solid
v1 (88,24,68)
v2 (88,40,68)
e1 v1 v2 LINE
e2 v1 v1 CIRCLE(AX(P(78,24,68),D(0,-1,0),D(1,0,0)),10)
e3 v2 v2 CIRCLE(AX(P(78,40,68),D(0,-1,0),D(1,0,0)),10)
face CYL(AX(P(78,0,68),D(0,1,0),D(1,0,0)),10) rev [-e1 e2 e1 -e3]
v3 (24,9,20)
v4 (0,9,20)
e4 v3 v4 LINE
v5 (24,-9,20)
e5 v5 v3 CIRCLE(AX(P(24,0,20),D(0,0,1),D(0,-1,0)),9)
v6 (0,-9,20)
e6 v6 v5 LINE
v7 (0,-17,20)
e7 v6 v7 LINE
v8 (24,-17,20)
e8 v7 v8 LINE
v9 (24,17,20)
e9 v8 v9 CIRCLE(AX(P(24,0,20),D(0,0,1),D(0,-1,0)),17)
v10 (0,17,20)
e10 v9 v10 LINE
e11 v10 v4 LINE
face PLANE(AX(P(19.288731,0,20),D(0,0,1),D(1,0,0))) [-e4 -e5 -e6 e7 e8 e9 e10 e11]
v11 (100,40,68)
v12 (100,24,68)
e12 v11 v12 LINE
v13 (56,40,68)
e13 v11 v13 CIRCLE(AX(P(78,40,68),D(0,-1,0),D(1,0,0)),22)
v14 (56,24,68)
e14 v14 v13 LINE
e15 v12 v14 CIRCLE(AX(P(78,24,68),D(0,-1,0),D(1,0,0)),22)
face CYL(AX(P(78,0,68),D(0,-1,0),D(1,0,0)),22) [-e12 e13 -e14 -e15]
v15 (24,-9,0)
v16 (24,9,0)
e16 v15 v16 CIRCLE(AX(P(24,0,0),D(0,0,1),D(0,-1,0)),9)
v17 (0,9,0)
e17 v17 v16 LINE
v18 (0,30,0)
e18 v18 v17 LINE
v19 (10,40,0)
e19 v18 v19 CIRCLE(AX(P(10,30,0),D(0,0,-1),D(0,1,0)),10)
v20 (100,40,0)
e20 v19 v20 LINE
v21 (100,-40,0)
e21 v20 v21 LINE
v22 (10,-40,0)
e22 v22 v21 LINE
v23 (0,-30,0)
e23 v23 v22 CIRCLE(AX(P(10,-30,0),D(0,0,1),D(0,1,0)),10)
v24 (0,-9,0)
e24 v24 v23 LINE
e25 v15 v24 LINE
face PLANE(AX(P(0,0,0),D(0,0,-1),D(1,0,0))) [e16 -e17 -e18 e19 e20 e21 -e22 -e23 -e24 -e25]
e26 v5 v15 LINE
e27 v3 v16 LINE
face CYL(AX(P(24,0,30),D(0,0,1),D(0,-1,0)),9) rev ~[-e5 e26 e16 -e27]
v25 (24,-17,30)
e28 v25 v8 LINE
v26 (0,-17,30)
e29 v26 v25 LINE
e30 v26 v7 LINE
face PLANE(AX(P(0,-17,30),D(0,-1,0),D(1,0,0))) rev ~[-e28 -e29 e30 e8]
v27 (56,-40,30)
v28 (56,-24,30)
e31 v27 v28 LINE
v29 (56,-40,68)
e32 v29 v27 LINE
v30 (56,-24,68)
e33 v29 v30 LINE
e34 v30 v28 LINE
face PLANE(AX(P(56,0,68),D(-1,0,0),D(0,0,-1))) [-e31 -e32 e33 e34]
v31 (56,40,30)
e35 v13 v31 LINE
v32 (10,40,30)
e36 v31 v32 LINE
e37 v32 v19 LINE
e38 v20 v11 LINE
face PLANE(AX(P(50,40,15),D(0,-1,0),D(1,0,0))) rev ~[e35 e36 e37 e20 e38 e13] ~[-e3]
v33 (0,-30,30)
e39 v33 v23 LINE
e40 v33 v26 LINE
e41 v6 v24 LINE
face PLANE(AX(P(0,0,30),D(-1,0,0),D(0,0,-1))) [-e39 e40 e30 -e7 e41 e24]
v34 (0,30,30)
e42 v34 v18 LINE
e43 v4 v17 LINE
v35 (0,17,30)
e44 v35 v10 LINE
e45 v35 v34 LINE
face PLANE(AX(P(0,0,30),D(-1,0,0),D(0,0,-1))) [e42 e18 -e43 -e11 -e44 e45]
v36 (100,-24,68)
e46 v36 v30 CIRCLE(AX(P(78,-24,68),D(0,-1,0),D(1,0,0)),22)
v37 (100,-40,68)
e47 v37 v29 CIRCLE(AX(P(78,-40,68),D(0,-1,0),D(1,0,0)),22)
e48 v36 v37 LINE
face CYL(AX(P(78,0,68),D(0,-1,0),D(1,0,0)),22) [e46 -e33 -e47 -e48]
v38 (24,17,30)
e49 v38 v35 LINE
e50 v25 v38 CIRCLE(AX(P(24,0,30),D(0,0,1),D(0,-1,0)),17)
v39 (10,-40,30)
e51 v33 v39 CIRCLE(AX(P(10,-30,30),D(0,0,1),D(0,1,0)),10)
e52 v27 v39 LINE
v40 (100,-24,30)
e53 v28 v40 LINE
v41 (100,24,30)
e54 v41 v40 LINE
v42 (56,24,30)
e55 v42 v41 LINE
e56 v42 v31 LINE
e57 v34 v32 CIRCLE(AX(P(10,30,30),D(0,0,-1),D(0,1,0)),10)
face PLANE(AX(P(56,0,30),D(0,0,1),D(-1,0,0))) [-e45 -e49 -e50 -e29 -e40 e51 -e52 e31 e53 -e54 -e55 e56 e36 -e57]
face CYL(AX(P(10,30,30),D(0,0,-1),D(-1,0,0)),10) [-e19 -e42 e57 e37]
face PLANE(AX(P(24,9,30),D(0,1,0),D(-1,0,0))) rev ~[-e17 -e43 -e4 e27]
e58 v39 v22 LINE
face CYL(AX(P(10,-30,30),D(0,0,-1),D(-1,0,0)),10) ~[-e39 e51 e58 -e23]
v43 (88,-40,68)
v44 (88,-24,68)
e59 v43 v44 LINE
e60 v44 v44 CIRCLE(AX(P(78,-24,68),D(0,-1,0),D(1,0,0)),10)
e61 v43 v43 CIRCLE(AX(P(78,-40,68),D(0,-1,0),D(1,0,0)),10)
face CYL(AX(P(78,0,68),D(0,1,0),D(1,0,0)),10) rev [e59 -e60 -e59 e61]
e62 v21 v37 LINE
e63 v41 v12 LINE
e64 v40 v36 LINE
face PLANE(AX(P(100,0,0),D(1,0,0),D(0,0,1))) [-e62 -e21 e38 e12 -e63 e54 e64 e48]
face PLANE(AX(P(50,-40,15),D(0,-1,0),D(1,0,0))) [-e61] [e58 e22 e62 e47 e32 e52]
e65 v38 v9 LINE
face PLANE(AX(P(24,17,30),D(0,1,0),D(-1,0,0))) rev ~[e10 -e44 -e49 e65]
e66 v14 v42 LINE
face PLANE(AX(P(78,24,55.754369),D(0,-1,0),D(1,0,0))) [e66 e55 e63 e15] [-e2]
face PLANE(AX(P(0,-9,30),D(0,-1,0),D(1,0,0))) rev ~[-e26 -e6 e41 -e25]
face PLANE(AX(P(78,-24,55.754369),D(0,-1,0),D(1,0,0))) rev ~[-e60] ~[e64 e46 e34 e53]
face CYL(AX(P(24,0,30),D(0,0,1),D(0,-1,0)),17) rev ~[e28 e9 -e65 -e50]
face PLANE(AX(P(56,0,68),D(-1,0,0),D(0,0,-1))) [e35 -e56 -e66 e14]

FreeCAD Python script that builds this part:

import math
import FreeCAD as App
import Part
import Sketcher

V = App.Vector


def edges_at(feature, points):
    """Names of the edges that pass closest to the given points."""
    edges = feature.Shape.Edges
    near = lambda p: min(range(len(edges)), key=lambda i: edges[i].distToShape(Part.Vertex(*p))[0])
    return sorted({f"Edge{near(p) + 1}" for p in points})

doc = App.newDocument("Part")
body = doc.addObject("PartDesign::Body", "Body")

sketch1 = body.newObject("Sketcher::SketchObject", "Sketch")
sketch1.AttachmentSupport = (doc.getObject("XZ_Plane"), [""])
sketch1.MapMode = "FlatFace"
sketch1.addGeometry([
    Part.LineSegment(V(0, 30, 0), V(0, 0, 0)),
    Part.LineSegment(V(0, 0, 0), V(100, 0, 0)),
    Part.LineSegment(V(100, 0, 0), V(100, 68, 0)),
    Part.ArcOfCircle(Part.Circle(V(78, 68, 0), V(0, 0, 1), 22), math.radians(0), math.radians(180)),
    Part.LineSegment(V(56, 68, 0), V(56, 30, 0)),
    Part.LineSegment(V(56, 30, 0), V(0, 30, 0)),
    Part.Circle(V(78, 68, 0), V(0, 0, 1), 10),
], False)
sketch1.addConstraint([
    Sketcher.Constraint("Coincident", 0, 2, 1, 1),
    Sketcher.Constraint("Coincident", 1, 2, 2, 1),
    Sketcher.Constraint("Tangent", 2, 2, 3, 1),
    Sketcher.Constraint("Tangent", 3, 2, 4, 1),
    Sketcher.Constraint("Coincident", 4, 2, 5, 1),
    Sketcher.Constraint("Coincident", 5, 2, 0, 1),
    Sketcher.Constraint("Vertical", 0),
    Sketcher.Constraint("Horizontal", 1),
    Sketcher.Constraint("Vertical", 2),
    Sketcher.Constraint("Vertical", 4),
    Sketcher.Constraint("Horizontal", 5),
    Sketcher.Constraint("Coincident", 0, 2, -1, 1),
    Sketcher.Constraint("Coincident", 6, 3, 3, 3),
    Sketcher.Constraint("Diameter", 6, 20.0),
    Sketcher.Constraint("Radius", 3, 22.0),
    Sketcher.Constraint("DistanceX", 1, 1, 1, 2, 100.0),
    Sketcher.Constraint("DistanceY", 0, 2, 0, 1, 30.0),
    Sketcher.Constraint("DistanceY", 2, 1, 2, 2, 68.0),
])
pad1 = body.newObject("PartDesign::Pad", "Pad")
pad1.Profile = sketch1
pad1.Length = 80
pad1.Midplane = True

sketch2 = body.newObject("Sketcher::SketchObject", "Sketch001")
sketch2.AttachmentSupport = (doc.getObject("XZ_Plane"), [""])
sketch2.MapMode = "FlatFace"
sketch2.addGeometry([
    Part.LineSegment(V(56, 30, 0), V(100, 30, 0)),
    Part.LineSegment(V(100, 30, 0), V(100, 68, 0)),
    Part.ArcOfCircle(Part.Circle(V(78, 68, 0), V(0, 0, 1), 22), math.radians(0), math.radians(180)),
    Part.LineSegment(V(56, 68, 0), V(56, 30, 0)),
    Part.Circle(V(78, 68, 0), V(0, 0, 1), 10),
], False)
sketch2.addConstraint([
    Sketcher.Constraint("Coincident", 0, 2, 1, 1),
    Sketcher.Constraint("Tangent", 1, 2, 2, 1),
    Sketcher.Constraint("Tangent", 2, 2, 3, 1),
    Sketcher.Constraint("Coincident", 3, 2, 0, 1),
    Sketcher.Constraint("Horizontal", 0),
    Sketcher.Constraint("Vertical", 1),
    Sketcher.Constraint("Vertical", 3),
    Sketcher.Constraint("Coincident", 4, 3, 2, 3),
    Sketcher.Constraint("Diameter", 4, 20.0),
    Sketcher.Constraint("Radius", 2, 22.0),
    Sketcher.Constraint("DistanceY", 1, 1, 1, 2, 38.0),
    Sketcher.Constraint("DistanceX", -1, 1, 2, 3, 78.0),
    Sketcher.Constraint("DistanceY", -1, 1, 2, 3, 68.0),
])
pocket1 = body.newObject("PartDesign::Pocket", "Pocket")
pocket1.Profile = sketch2
pocket1.Length = 48
pocket1.Midplane = True

sketch3 = body.newObject("Sketcher::SketchObject", "Sketch002")
sketch3.AttachmentSupport = (doc.getObject("XY_Plane"), [""])
sketch3.MapMode = "FlatFace"
sketch3.AttachmentOffset = App.Placement(V(0, 0, 30), App.Rotation())
sketch3.addGeometry([
    Part.LineSegment(V(0, -17, 0), V(24, -17, 0)),
    Part.ArcOfCircle(Part.Circle(V(24, 0, 0), V(0, 0, 1), 17), math.radians(-90), math.radians(90)),
    Part.LineSegment(V(24, 17, 0), V(0, 17, 0)),
    Part.LineSegment(V(0, 17, 0), V(0, -17, 0)),
], False)
sketch3.addConstraint([
    Sketcher.Constraint("Tangent", 0, 2, 1, 1),
    Sketcher.Constraint("Tangent", 1, 2, 2, 1),
    Sketcher.Constraint("Coincident", 2, 2, 3, 1),
    Sketcher.Constraint("Coincident", 3, 2, 0, 1),
    Sketcher.Constraint("Horizontal", 0),
    Sketcher.Constraint("Horizontal", 2),
    Sketcher.Constraint("Vertical", 3),
    Sketcher.Constraint("Symmetric", 2, 2, 3, 2, -1, 1),
    Sketcher.Constraint("Radius", 1, 17.0),
    Sketcher.Constraint("DistanceX", 0, 1, 0, 2, 24.0),
])
pocket2 = body.newObject("PartDesign::Pocket", "Pocket001")
pocket2.Profile = sketch3
pocket2.Length = 10

sketch4 = body.newObject("Sketcher::SketchObject", "Sketch003")
sketch4.AttachmentSupport = (doc.getObject("XY_Plane"), [""])
sketch4.MapMode = "FlatFace"
sketch4.AttachmentOffset = App.Placement(V(0, 0, 30), App.Rotation())
sketch4.addGeometry([
    Part.LineSegment(V(0, 9, 0), V(0, -9, 0)),
    Part.LineSegment(V(0, -9, 0), V(24, -9, 0)),
    Part.ArcOfCircle(Part.Circle(V(24, 0, 0), V(0, 0, 1), 9), math.radians(-90), math.radians(90)),
    Part.LineSegment(V(24, 9, 0), V(0, 9, 0)),
], False)
sketch4.addConstraint([
    Sketcher.Constraint("Coincident", 0, 2, 1, 1),
    Sketcher.Constraint("Tangent", 1, 2, 2, 1),
    Sketcher.Constraint("Tangent", 2, 2, 3, 1),
    Sketcher.Constraint("Coincident", 3, 2, 0, 1),
    Sketcher.Constraint("Vertical", 0),
    Sketcher.Constraint("Horizontal", 1),
    Sketcher.Constraint("Horizontal", 3),
    Sketcher.Constraint("Symmetric", 0, 2, 3, 2, -1, 1),
    Sketcher.Constraint("Radius", 2, 9.0),
    Sketcher.Constraint("DistanceX", 1, 1, 1, 2, 24.0),
])
pocket3 = body.newObject("PartDesign::Pocket", "Pocket002")
pocket3.Profile = sketch4
pocket3.Type = "ThroughAll"
doc.recompute()

fillet = body.newObject("PartDesign::Fillet", "Fillet")
fillet.Base = (pocket3, edges_at(pocket3, [(0, -40, 15), (0, 40, 15)]))
fillet.Radius = 10

doc.recompute()
